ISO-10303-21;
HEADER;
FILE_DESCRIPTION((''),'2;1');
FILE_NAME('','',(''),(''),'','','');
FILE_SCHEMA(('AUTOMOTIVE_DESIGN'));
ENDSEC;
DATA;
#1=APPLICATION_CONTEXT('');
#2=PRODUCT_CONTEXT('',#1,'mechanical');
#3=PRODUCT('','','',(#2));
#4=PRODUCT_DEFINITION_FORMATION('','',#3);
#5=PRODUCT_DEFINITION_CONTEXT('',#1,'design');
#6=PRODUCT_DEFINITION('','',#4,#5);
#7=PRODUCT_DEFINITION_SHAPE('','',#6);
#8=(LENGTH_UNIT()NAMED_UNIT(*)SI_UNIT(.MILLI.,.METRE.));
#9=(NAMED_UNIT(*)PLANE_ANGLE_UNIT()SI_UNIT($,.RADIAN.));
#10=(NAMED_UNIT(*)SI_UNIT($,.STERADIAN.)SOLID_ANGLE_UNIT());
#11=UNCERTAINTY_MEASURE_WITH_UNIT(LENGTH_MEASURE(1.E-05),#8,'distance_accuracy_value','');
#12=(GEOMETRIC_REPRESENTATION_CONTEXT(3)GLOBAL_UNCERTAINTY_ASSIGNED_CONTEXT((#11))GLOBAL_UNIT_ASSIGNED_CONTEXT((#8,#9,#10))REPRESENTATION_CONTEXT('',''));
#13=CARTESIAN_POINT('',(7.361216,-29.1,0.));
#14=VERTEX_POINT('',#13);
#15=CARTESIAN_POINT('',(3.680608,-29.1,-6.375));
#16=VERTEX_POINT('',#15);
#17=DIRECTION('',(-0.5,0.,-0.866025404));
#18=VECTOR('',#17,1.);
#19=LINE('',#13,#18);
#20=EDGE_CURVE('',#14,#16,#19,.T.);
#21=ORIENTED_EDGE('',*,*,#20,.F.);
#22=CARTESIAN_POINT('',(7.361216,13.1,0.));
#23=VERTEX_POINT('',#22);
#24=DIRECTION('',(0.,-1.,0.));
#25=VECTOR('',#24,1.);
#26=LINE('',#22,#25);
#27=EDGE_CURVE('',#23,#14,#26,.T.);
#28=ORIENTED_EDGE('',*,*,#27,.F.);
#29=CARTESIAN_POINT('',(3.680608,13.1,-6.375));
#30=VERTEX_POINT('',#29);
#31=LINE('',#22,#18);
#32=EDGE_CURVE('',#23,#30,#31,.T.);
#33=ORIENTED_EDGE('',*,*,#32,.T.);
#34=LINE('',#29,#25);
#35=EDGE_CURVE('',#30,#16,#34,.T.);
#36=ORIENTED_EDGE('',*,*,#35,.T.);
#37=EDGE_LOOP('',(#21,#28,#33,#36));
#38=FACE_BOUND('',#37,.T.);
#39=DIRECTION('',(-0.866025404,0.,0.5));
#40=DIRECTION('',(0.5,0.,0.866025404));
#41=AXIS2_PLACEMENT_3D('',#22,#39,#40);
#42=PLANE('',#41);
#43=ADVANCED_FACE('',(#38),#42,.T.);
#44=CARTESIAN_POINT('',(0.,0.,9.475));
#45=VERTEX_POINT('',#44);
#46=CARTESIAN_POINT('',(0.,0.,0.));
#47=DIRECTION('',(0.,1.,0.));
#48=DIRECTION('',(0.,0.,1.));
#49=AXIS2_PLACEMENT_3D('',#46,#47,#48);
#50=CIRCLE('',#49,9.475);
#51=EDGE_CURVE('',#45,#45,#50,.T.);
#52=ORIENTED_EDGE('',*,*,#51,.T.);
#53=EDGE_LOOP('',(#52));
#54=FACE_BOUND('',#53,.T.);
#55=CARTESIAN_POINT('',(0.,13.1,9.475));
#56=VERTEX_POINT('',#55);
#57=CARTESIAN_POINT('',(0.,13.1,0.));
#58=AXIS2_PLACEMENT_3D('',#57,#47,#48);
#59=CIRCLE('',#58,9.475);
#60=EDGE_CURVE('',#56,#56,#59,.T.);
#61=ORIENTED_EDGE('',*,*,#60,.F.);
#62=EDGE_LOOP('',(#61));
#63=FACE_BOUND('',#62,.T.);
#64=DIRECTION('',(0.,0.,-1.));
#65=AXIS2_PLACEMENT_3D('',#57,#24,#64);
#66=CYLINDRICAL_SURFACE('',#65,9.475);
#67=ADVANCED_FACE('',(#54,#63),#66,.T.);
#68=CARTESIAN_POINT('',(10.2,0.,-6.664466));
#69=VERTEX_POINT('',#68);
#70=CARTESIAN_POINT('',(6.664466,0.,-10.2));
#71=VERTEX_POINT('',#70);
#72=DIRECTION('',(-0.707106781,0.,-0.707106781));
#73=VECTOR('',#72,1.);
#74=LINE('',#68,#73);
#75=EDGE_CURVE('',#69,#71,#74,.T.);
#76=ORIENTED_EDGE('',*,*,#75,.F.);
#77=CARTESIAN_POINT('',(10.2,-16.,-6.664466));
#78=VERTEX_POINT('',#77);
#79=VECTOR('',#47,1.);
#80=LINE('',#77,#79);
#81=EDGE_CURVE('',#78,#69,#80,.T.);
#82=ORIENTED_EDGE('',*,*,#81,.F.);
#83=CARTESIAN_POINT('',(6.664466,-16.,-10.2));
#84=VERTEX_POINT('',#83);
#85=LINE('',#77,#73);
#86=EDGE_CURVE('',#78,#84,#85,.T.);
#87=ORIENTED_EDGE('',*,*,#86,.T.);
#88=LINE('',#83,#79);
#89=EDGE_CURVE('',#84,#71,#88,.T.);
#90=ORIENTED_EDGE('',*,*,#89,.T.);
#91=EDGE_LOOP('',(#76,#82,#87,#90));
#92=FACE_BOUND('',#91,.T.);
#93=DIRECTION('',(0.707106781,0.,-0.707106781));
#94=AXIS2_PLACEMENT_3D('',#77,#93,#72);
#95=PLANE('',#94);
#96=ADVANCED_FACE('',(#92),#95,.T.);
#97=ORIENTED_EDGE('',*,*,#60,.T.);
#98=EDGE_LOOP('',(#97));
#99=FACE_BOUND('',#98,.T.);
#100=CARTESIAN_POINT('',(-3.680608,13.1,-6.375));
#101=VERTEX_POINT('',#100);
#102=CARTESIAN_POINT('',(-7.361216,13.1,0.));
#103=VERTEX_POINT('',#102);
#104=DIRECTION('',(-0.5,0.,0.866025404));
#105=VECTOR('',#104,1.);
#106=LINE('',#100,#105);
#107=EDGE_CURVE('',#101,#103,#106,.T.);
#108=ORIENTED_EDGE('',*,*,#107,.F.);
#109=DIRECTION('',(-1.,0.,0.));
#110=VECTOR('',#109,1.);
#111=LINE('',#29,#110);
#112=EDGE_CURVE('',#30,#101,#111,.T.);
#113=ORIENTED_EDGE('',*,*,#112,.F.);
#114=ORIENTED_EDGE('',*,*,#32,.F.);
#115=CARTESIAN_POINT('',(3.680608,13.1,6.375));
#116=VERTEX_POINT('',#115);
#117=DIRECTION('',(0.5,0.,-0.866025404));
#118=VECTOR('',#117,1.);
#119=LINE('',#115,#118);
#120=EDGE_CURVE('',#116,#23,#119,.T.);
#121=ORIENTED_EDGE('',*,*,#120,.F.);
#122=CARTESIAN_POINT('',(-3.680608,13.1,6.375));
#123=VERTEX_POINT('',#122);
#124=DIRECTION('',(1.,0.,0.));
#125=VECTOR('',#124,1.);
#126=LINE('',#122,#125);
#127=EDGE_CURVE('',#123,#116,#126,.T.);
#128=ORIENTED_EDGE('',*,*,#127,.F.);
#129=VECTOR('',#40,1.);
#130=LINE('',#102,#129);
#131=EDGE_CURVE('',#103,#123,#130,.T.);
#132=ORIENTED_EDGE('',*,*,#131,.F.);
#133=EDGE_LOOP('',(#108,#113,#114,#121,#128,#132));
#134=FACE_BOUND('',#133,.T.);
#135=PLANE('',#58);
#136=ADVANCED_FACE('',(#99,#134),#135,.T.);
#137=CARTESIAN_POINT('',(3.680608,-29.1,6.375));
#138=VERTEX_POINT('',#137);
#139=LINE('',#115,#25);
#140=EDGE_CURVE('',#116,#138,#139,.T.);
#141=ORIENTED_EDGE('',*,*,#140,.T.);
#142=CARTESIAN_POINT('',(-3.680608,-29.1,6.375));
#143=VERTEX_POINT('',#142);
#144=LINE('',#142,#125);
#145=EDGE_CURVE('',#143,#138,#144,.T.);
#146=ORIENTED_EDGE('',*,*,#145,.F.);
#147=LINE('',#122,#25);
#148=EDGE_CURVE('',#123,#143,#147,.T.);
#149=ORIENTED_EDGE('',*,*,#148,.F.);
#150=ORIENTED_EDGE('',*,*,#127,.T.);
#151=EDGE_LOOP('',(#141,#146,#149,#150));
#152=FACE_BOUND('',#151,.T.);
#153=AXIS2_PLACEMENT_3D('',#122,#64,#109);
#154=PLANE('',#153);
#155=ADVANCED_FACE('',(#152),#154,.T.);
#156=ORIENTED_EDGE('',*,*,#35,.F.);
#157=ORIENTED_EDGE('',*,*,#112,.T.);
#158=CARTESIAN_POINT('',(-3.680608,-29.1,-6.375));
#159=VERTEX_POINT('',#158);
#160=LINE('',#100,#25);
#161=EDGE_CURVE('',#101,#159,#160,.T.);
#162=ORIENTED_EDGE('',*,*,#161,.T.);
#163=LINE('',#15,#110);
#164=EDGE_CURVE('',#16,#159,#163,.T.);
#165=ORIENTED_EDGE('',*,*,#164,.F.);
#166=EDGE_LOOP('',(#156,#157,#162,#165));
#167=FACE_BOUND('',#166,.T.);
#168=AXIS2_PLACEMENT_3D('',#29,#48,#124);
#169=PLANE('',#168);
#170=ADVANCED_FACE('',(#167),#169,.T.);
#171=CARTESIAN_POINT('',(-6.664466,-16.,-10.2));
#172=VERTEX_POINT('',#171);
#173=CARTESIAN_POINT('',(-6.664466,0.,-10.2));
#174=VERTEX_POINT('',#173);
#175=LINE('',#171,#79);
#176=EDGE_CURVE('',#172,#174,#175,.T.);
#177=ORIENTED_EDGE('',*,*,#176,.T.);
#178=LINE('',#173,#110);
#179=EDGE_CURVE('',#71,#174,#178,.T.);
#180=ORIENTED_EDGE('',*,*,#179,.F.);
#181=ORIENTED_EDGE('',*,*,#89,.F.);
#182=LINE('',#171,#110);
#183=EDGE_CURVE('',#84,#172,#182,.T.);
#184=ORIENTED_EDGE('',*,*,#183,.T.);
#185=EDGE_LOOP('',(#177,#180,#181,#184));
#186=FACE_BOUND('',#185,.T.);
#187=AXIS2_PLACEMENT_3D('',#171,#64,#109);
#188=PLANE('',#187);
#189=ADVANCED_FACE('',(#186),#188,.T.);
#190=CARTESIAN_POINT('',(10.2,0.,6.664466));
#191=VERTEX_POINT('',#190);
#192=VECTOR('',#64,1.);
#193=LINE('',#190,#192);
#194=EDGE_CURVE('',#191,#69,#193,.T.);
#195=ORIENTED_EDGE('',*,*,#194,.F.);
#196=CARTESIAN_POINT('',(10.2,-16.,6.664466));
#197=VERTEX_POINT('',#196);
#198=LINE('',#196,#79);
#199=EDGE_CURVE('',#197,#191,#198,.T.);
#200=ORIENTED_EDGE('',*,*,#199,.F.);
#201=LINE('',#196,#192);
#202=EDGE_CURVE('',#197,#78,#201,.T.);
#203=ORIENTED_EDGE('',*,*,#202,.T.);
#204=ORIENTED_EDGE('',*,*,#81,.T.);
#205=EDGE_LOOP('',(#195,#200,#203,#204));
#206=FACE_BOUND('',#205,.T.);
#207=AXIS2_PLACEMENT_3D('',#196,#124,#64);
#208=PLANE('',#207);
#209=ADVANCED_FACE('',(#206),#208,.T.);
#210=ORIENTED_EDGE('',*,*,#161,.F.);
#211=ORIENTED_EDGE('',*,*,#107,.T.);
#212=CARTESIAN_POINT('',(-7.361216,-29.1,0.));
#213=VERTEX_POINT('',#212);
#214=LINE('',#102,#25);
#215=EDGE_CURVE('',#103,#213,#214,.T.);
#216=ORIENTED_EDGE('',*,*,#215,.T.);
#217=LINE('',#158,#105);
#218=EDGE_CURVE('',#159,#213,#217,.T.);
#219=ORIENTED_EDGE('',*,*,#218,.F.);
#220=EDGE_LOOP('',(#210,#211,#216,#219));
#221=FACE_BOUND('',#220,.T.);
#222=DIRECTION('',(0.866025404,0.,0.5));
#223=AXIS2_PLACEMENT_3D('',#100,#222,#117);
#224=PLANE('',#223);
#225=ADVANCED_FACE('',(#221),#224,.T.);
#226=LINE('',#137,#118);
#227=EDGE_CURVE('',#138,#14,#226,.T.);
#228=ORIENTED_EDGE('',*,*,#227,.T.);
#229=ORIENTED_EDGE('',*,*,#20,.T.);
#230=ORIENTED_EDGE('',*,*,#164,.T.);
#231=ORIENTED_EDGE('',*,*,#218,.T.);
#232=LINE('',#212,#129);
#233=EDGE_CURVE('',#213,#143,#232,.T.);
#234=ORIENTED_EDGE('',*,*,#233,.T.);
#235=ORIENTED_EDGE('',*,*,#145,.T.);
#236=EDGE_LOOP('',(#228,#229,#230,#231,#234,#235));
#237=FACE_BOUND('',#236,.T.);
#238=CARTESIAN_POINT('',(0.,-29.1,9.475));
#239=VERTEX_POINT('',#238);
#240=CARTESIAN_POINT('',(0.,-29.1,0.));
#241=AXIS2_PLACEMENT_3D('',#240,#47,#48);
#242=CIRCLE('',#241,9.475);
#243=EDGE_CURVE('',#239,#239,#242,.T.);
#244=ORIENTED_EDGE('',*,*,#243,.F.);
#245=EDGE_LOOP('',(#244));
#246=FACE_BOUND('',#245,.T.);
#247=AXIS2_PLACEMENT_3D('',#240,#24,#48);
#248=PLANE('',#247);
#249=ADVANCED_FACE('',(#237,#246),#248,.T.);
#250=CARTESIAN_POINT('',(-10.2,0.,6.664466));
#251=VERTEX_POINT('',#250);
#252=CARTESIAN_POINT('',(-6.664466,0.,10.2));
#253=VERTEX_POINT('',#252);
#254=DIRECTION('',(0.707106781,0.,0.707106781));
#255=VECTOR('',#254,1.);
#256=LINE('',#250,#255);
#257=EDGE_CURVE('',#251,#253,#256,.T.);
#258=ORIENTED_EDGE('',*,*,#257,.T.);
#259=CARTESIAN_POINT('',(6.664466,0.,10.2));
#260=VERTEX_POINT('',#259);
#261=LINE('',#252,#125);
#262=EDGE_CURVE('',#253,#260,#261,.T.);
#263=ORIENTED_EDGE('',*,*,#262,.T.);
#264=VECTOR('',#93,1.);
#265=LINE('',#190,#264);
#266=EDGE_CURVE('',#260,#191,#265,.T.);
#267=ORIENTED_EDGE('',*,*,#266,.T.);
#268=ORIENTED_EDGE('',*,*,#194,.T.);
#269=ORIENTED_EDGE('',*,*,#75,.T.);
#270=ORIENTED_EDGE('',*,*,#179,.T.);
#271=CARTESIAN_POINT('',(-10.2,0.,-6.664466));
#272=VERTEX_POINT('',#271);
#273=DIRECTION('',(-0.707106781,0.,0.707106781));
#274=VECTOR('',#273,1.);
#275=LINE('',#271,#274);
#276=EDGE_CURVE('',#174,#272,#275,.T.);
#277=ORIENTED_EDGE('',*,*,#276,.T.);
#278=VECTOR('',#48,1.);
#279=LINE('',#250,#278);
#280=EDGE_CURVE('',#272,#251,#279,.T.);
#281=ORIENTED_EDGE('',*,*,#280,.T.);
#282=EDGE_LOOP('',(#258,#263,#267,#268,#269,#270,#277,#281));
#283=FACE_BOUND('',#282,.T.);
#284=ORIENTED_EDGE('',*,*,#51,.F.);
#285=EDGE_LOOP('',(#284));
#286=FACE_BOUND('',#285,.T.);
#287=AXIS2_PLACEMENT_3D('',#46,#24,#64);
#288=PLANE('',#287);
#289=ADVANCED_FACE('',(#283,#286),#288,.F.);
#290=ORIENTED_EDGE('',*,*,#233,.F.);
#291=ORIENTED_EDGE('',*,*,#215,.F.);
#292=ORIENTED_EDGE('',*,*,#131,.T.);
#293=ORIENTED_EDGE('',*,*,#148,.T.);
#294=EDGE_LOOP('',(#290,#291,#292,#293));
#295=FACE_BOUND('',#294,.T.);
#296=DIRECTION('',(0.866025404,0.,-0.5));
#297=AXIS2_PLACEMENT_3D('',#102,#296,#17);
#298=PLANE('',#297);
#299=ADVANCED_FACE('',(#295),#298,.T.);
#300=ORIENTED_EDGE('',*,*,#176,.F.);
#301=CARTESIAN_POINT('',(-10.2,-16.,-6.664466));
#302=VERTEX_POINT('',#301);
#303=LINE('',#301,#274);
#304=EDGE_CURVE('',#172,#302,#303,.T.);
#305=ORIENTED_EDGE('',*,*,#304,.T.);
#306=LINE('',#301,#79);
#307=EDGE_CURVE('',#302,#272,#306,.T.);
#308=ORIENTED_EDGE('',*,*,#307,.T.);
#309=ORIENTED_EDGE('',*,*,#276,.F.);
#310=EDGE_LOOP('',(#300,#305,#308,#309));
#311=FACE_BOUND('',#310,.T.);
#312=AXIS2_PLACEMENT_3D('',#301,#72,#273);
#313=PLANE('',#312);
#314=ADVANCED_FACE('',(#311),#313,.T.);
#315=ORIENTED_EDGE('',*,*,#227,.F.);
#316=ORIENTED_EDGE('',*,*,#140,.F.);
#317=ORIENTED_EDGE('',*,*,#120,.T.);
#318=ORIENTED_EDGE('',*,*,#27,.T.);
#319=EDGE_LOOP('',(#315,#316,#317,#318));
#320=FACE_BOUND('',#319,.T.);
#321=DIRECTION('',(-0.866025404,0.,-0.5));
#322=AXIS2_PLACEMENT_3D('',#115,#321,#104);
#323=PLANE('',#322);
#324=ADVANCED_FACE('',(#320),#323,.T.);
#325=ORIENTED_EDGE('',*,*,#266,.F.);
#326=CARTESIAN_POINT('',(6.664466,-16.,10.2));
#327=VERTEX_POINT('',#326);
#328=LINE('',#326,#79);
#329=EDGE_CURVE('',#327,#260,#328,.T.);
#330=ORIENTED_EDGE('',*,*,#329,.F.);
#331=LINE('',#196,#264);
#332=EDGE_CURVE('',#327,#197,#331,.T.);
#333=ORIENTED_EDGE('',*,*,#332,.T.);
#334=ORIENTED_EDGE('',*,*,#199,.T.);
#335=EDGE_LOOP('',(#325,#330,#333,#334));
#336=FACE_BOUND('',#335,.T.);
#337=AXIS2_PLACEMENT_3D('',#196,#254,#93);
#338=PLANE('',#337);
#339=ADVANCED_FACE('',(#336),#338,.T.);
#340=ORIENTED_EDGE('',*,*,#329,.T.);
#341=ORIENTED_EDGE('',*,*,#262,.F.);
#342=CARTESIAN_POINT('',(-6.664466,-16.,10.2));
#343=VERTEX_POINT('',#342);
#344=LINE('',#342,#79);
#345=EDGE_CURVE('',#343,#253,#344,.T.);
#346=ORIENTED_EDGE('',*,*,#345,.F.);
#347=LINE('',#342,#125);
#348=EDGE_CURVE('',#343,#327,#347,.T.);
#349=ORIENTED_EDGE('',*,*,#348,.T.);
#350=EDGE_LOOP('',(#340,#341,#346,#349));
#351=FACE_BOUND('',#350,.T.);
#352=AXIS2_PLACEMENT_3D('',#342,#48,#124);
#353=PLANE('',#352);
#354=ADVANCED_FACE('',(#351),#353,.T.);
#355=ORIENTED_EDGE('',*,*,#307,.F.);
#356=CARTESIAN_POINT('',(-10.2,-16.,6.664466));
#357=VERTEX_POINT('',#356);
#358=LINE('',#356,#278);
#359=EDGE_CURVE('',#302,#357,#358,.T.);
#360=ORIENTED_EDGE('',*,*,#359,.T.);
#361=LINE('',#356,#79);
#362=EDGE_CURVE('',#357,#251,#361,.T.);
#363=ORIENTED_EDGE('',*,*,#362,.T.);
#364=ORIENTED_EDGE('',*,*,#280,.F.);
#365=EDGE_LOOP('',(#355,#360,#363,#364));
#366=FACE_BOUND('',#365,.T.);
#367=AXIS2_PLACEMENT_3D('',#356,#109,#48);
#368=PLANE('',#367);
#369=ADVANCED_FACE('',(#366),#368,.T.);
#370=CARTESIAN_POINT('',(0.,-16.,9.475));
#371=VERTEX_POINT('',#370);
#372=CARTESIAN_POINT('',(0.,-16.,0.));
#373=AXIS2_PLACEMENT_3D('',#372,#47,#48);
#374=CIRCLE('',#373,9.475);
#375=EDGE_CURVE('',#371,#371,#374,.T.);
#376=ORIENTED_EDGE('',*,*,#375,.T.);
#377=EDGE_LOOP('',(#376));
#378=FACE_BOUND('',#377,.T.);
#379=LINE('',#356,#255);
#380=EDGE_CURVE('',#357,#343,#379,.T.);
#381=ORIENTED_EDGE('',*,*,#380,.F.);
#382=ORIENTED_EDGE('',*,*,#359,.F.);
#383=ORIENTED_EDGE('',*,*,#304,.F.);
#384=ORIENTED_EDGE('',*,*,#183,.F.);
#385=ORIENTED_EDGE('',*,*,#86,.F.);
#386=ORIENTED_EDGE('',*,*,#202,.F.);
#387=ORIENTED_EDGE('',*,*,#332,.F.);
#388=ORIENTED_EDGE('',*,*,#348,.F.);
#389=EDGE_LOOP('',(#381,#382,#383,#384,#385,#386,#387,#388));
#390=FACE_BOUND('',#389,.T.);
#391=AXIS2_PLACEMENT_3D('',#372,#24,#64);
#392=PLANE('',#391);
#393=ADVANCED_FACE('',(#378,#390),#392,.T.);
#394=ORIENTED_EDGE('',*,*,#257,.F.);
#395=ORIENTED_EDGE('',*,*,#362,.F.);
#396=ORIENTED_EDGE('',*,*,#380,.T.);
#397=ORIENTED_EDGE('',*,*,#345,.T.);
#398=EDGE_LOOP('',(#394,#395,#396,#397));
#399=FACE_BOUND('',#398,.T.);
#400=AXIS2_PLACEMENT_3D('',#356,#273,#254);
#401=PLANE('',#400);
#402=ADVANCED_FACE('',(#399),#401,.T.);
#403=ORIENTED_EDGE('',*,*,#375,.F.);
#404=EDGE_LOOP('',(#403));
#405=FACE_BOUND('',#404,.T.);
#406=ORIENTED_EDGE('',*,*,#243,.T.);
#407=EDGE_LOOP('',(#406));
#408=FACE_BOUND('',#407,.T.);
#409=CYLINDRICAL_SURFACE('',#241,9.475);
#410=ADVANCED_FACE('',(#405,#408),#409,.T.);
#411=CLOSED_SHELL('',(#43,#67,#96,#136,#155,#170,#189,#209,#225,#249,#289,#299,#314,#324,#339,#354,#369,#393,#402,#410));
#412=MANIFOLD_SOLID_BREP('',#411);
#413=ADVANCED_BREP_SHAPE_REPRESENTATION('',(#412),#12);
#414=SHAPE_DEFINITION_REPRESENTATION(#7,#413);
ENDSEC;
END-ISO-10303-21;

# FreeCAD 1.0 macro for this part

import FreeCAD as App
import Part
import Sketcher
Q = App.Units.Quantity

doc = App.newDocument("Part")
body = doc.addObject("PartDesign::Body", "Body")

# Sketch on XZ plane
sketch1 = doc.addObject("Sketcher::SketchObject", "Sketch")
body.addObject(sketch1)
sketch1.AttachmentSupport = (doc.XZ_Plane, [""])
sketch1.MapMode = "FlatFace"
sketch1.addGeometry([
    Part.Circle(App.Vector(0, 0, 0), App.Vector(0, 0, 1), 9),  # 0
    Part.LineSegment(App.Vector(4, -6, 0), App.Vector(7, 0, 0)),  # 1
    Part.LineSegment(App.Vector(7, 0, 0), App.Vector(4, 6, 0)),  # 2
    Part.LineSegment(App.Vector(4, 6, 0), App.Vector(-4, 6, 0)),  # 3
    Part.LineSegment(App.Vector(-4, 6, 0), App.Vector(-7, 0, 0)),  # 4
    Part.LineSegment(App.Vector(-7, 0, 0), App.Vector(-4, -6, 0)),  # 5
    Part.LineSegment(App.Vector(-4, -6, 0), App.Vector(4, -6, 0)),  # 6
], False)
sketch1.addConstraint([
    Sketcher.Constraint("Coincident", 1, 2, 2, 1),
    Sketcher.Constraint("Coincident", 2, 2, 3, 1),
    Sketcher.Constraint("Coincident", 3, 2, 4, 1),
    Sketcher.Constraint("Coincident", 4, 2, 5, 1),
    Sketcher.Constraint("Coincident", 5, 2, 6, 1),
    Sketcher.Constraint("Coincident", 6, 2, 1, 1),
    Sketcher.Constraint("Horizontal", 3),
    Sketcher.Constraint("Horizontal", 6),
    Sketcher.Constraint("Coincident", 0, 3, -1, 1),
    Sketcher.Constraint("Symmetric", 1, 2, 4, 2, -1, 1),
    Sketcher.Constraint("Symmetric", 2, 2, 5, 2, -1, 1),
    Sketcher.Constraint("PointOnObject", 1, 2, -1),
    Sketcher.Constraint("Parallel", 1, 4),
    Sketcher.Constraint("Vertical", 3, 2, 5, 2),
    Sketcher.Constraint("Diameter", 0, Q("18.95 mm")),
    Sketcher.Constraint("Angle", 1, Q("60 deg")),
    Sketcher.Constraint("DistanceY", 5, 2, 3, 2, Q("12.75 mm")),
    Sketcher.Constraint("DistanceX", 3, 2, 3, 1, Q("7.361216 mm")),
])
pad1 = doc.addObject("PartDesign::Pad", "Pad")
body.addObject(pad1)
pad1.Profile = sketch1
pad1.Length = 13.1
pad1.Reversed = True

# Sketch on XZ plane
sketch2 = doc.addObject("Sketcher::SketchObject", "Sketch001")
body.addObject(sketch2)
sketch2.AttachmentSupport = (doc.XZ_Plane, [""])
sketch2.MapMode = "FlatFace"
sketch2.addGeometry([
    Part.LineSegment(App.Vector(-7, -10, 0), App.Vector(-10, -7, 0)),  # 0
    Part.LineSegment(App.Vector(-10, -7, 0), App.Vector(-10, 7, 0)),  # 1
    Part.LineSegment(App.Vector(-10, 7, 0), App.Vector(-7, 10, 0)),  # 2
    Part.LineSegment(App.Vector(-7, 10, 0), App.Vector(7, 10, 0)),  # 3
    Part.LineSegment(App.Vector(7, 10, 0), App.Vector(10, 7, 0)),  # 4
    Part.LineSegment(App.Vector(10, 7, 0), App.Vector(10, -7, 0)),  # 5
    Part.LineSegment(App.Vector(10, -7, 0), App.Vector(7, -10, 0)),  # 6
    Part.LineSegment(App.Vector(7, -10, 0), App.Vector(-7, -10, 0)),  # 7
    Part.LineSegment(App.Vector(4, -6, 0), App.Vector(7, 0, 0)),  # 8
    Part.LineSegment(App.Vector(7, 0, 0), App.Vector(4, 6, 0)),  # 9
    Part.LineSegment(App.Vector(4, 6, 0), App.Vector(-4, 6, 0)),  # 10
    Part.LineSegment(App.Vector(-4, 6, 0), App.Vector(-7, 0, 0)),  # 11
    Part.LineSegment(App.Vector(-7, 0, 0), App.Vector(-4, -6, 0)),  # 12
    Part.LineSegment(App.Vector(-4, -6, 0), App.Vector(4, -6, 0)),  # 13
], False)
sketch2.addConstraint([
    Sketcher.Constraint("Coincident", 0, 2, 1, 1),
    Sketcher.Constraint("Coincident", 1, 2, 2, 1),
    Sketcher.Constraint("Coincident", 2, 2, 3, 1),
    Sketcher.Constraint("Coincident", 3, 2, 4, 1),
    Sketcher.Constraint("Coincident", 4, 2, 5, 1),
    Sketcher.Constraint("Coincident", 5, 2, 6, 1),
    Sketcher.Constraint("Coincident", 6, 2, 7, 1),
    Sketcher.Constraint("Coincident", 7, 2, 0, 1),
    Sketcher.Constraint("Coincident", 8, 2, 9, 1),
    Sketcher.Constraint("Coincident", 9, 2, 10, 1),
    Sketcher.Constraint("Coincident", 10, 2, 11, 1),
    Sketcher.Constraint("Coincident", 11, 2, 12, 1),
    Sketcher.Constraint("Coincident", 12, 2, 13, 1),
    Sketcher.Constraint("Coincident", 13, 2, 8, 1),
    Sketcher.Constraint("Vertical", 1),
    Sketcher.Constraint("Horizontal", 3),
    Sketcher.Constraint("Vertical", 5),
    Sketcher.Constraint("Horizontal", 7),
    Sketcher.Constraint("Horizontal", 10),
    Sketcher.Constraint("Horizontal", 13),
    Sketcher.Constraint("Symmetric", 0, 2, 4, 2, -1, 1),
    Sketcher.Constraint("Symmetric", 2, 2, 6, 2, -1, 1),
    Sketcher.Constraint("Symmetric", 8, 2, 11, 2, -1, 1),
    Sketcher.Constraint("Symmetric", 9, 2, 12, 2, -1, 1),
    Sketcher.Constraint("PointOnObject", 8, 2, -1),
    Sketcher.Constraint("Perpendicular", 0, 2),
    Sketcher.Constraint("Perpendicular", 2, 4),
    Sketcher.Constraint("Perpendicular", 4, 6),
    Sketcher.Constraint("Parallel", 8, 11),
    Sketcher.Constraint("Horizontal", 1, 2, 4, 2),
    Sketcher.Constraint("Vertical", 3, 2, 6, 2),
    Sketcher.Constraint("Vertical", 10, 2, 12, 2),
    Sketcher.Constraint("Equal", 7, 1),
    Sketcher.Constraint("Angle", 8, Q("60 deg")),
    Sketcher.Constraint("Distance", 0, Q("5 mm")),
    Sketcher.Constraint("DistanceX", 0, 2, -1, 1, Q("10.2 mm")),
    Sketcher.Constraint("DistanceY", -1, 1, 9, 2, Q("6.375 mm")),
    Sketcher.Constraint("DistanceX", 10, 2, 10, 1, Q("7.361216 mm")),
])
pad2 = doc.addObject("PartDesign::Pad", "Pad001")
body.addObject(pad2)
pad2.Profile = sketch2
pad2.Length = 16
doc.recompute()

datumplane = doc.addObject("PartDesign::Plane", "DatumPlane")
body.addObject(datumplane)
datumplane.AttachmentSupport = (doc.XZ_Plane, [""])
datumplane.MapMode = "FlatFace"
datumplane.AttachmentOffset = App.Placement(App.Vector(0, 0, 8), App.Rotation())
mirrored = doc.addObject("PartDesign::Mirrored", "Mirrored")
body.addObject(mirrored)
mirrored.Originals = [pad1]
mirrored.MirrorPlane = (datumplane, [""])
body.Tip = mirrored

doc.recompute()
